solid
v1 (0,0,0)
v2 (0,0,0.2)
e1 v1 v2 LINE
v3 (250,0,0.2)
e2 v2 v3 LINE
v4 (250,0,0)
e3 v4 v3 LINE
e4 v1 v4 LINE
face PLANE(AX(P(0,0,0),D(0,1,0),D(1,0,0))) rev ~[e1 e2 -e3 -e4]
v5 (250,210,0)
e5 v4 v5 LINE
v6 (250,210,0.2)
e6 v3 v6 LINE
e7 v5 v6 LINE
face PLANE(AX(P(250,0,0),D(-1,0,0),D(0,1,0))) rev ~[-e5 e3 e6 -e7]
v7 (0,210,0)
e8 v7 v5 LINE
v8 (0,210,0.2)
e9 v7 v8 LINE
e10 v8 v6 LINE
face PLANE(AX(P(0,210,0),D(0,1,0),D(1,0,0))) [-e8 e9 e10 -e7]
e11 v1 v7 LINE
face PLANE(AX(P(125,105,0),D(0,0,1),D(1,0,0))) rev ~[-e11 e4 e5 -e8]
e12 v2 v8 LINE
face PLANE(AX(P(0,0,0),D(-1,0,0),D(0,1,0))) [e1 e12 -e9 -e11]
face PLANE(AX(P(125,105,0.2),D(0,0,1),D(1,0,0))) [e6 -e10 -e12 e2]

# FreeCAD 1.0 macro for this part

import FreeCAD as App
import Part
import Sketcher
Q = App.Units.Quantity

doc = App.newDocument("Part")
params = doc.addObject("Spreadsheet::Sheet", "Params")
for row, (alias, value) in enumerate([
    ("sketch1_width", "250 mm"),
    ("sketch1_height", "210 mm"),
    ("pad1_length", "0.2 mm"),
], start=1):
    params.set(f"A{row}", alias)
    params.set(f"B{row}", "=" + value)
    params.setAlias(f"B{row}", alias)

body = doc.addObject("PartDesign::Body", "Body")

# Sketch on XY plane
sketch1 = body.newObject("Sketcher::SketchObject", "Sketch")
sketch1.AttachmentSupport = (doc.getObject("XY_Plane"), [""])
sketch1.MapMode = "FlatFace"
sketch1.addGeometry(Part.LineSegment(App.Vector(0, 210, 0), App.Vector(0, 0, 0)), False)
sketch1.addGeometry(Part.LineSegment(App.Vector(0, 0, 0), App.Vector(250, 0, 0)), False)
sketch1.addGeometry(Part.LineSegment(App.Vector(250, 0, 0), App.Vector(250, 210, 0)), False)
sketch1.addGeometry(Part.LineSegment(App.Vector(250, 210, 0), App.Vector(0, 210, 0)), False)
sketch1.addConstraint(Sketcher.Constraint("Coincident", 0, 2, 1, 1))
sketch1.addConstraint(Sketcher.Constraint("Coincident", 1, 2, 2, 1))
sketch1.addConstraint(Sketcher.Constraint("Coincident", 2, 2, 3, 1))
sketch1.addConstraint(Sketcher.Constraint("Coincident", 3, 2, 0, 1))
sketch1.addConstraint(Sketcher.Constraint("Vertical", 0))
sketch1.addConstraint(Sketcher.Constraint("Horizontal", 1))
sketch1.addConstraint(Sketcher.Constraint("Vertical", 2))
sketch1.addConstraint(Sketcher.Constraint("Horizontal", 3))
sketch1.addConstraint(Sketcher.Constraint("Coincident", 0, 2, -1, 1))
sketch1.addConstraint(Sketcher.Constraint("DistanceX", 1, 1, 1, 2, Q("250 mm")))
sketch1.addConstraint(Sketcher.Constraint("DistanceY", 0, 2, 0, 1, Q("210 mm")))
sketch1.setExpression("Constraints[9]", "Params.sketch1_width")
sketch1.setExpression("Constraints[10]", "Params.sketch1_height")
pad1 = body.newObject("PartDesign::Pad", "Pad")
pad1.Profile = sketch1
pad1.setExpression("Length", "Params.pad1_length")

doc.recompute()
